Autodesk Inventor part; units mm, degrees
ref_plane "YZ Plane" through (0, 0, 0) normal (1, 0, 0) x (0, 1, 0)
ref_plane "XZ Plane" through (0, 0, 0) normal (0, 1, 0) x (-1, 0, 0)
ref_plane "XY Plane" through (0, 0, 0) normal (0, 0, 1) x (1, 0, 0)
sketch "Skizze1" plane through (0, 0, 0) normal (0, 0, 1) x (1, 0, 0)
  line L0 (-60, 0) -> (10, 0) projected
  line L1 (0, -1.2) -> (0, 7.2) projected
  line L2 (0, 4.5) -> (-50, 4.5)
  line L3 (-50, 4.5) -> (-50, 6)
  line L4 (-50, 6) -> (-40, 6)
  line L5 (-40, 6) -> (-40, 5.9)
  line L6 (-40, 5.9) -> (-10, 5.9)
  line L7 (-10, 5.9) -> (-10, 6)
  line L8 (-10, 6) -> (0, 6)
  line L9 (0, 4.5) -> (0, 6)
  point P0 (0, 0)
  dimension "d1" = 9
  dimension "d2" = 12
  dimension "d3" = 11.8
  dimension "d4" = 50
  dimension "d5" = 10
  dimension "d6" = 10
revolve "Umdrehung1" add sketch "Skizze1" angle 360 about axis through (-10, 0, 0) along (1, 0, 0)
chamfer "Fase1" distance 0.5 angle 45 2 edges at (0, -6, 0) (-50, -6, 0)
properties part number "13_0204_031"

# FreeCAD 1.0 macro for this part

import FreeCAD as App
import Part
import Sketcher


def edges_at(feature, points):
    """Names of the edges that pass closest to the given points."""
    edges = feature.Shape.Edges
    near = lambda p: min(range(len(edges)), key=lambda i: edges[i].distToShape(Part.Vertex(*p))[0])
    return sorted({f"Edge{near(p) + 1}" for p in points})


def add_polygon(sketch, points):
    """Adds a closed chain of lines whose ends are joined by coincident constraints."""
    first, n = sketch.GeometryCount, len(points)
    for a, b in zip(points, points[1:] + points[:1]):
        sketch.addGeometry(Part.LineSegment(App.Vector(*a, 0), App.Vector(*b, 0)), False)
    for i in range(n):
        sketch.addConstraint(Sketcher.Constraint("Coincident", first + i, 2, first + (i + 1) % n, 1))

doc = App.newDocument("Part")
params = doc.addObject("Spreadsheet::Sheet", "Params")
for row, (alias, value) in enumerate([
    ("sketch1_width", "50 mm"),
    ("sketch1_width2", "10 mm"),
    ("sketch1_height", "1.5 mm"),
    ("sketch1_height2", "0.1 mm"),
    ("revolution_angle", "360 deg"),
    ("chamfer_size", "0.5 mm"),
], start=1):
    params.set(f"A{row}", alias)
    params.set(f"B{row}", "=" + value)
    params.setAlias(f"B{row}", alias)

body = doc.addObject("PartDesign::Body", "Body")

# Sketch on XY plane
sketch1 = body.newObject("Sketcher::SketchObject", "Sketch")
sketch1.AttachmentSupport = (doc.getObject("XY_Plane"), [""])
sketch1.MapMode = "FlatFace"
add_polygon(sketch1, [(-50, 4.5), (0, 4.5), (0, 6), (-10, 6), (-10, 5.9), (-40, 5.9), (-40, 6), (-50, 6)])  # lines 0-7
sketch1.addConstraint(Sketcher.Constraint("Horizontal", 0))
sketch1.addConstraint(Sketcher.Constraint("Vertical", 1))
sketch1.addConstraint(Sketcher.Constraint("Horizontal", 2))
sketch1.addConstraint(Sketcher.Constraint("Vertical", 3))
sketch1.addConstraint(Sketcher.Constraint("Horizontal", 4))
sketch1.addConstraint(Sketcher.Constraint("Vertical", 5))
sketch1.addConstraint(Sketcher.Constraint("Horizontal", 6))
sketch1.addConstraint(Sketcher.Constraint("Vertical", 7))
sketch1.addConstraint(Sketcher.Constraint("PointOnObject", 0, 2, -2))
sketch1.addConstraint(Sketcher.Constraint("Horizontal", 2, 2, 5, 2))
sketch1.addConstraint(Sketcher.Constraint("Equal", 2, 6))
sketch1.addConstraint(Sketcher.Constraint("DistanceX", 0, 1, 0, 2, 50.0))
sketch1.addConstraint(Sketcher.Constraint("DistanceX", 2, 2, 2, 1, 10.0))
sketch1.addConstraint(Sketcher.Constraint("DistanceY", 1, 1, 1, 2, 1.5))
sketch1.addConstraint(Sketcher.Constraint("DistanceY", 3, 2, 3, 1, 0.1))
sketch1.addConstraint(Sketcher.Constraint("DistanceY", -1, 1, 1, 2, 6.0))
sketch1.setExpression("Constraints[19]", "Params.sketch1_width")
sketch1.setExpression("Constraints[20]", "Params.sketch1_width2")
sketch1.setExpression("Constraints[21]", "Params.sketch1_height")
sketch1.setExpression("Constraints[22]", "Params.sketch1_height2")
revolution = body.newObject("PartDesign::Revolution", "Revolution")
revolution.Profile = sketch1
revolution.ReferenceAxis = (sketch1, ["H_Axis"])
revolution.setExpression("Angle", "Params.revolution_angle")
doc.recompute()

chamfer = body.newObject("PartDesign::Chamfer", "Chamfer")
chamfer.Base = (revolution, edges_at(revolution, [(0, -6, 0), (-50, -6, 0)]))
chamfer.setExpression("Size", "Params.chamfer_size")

doc.recompute()
